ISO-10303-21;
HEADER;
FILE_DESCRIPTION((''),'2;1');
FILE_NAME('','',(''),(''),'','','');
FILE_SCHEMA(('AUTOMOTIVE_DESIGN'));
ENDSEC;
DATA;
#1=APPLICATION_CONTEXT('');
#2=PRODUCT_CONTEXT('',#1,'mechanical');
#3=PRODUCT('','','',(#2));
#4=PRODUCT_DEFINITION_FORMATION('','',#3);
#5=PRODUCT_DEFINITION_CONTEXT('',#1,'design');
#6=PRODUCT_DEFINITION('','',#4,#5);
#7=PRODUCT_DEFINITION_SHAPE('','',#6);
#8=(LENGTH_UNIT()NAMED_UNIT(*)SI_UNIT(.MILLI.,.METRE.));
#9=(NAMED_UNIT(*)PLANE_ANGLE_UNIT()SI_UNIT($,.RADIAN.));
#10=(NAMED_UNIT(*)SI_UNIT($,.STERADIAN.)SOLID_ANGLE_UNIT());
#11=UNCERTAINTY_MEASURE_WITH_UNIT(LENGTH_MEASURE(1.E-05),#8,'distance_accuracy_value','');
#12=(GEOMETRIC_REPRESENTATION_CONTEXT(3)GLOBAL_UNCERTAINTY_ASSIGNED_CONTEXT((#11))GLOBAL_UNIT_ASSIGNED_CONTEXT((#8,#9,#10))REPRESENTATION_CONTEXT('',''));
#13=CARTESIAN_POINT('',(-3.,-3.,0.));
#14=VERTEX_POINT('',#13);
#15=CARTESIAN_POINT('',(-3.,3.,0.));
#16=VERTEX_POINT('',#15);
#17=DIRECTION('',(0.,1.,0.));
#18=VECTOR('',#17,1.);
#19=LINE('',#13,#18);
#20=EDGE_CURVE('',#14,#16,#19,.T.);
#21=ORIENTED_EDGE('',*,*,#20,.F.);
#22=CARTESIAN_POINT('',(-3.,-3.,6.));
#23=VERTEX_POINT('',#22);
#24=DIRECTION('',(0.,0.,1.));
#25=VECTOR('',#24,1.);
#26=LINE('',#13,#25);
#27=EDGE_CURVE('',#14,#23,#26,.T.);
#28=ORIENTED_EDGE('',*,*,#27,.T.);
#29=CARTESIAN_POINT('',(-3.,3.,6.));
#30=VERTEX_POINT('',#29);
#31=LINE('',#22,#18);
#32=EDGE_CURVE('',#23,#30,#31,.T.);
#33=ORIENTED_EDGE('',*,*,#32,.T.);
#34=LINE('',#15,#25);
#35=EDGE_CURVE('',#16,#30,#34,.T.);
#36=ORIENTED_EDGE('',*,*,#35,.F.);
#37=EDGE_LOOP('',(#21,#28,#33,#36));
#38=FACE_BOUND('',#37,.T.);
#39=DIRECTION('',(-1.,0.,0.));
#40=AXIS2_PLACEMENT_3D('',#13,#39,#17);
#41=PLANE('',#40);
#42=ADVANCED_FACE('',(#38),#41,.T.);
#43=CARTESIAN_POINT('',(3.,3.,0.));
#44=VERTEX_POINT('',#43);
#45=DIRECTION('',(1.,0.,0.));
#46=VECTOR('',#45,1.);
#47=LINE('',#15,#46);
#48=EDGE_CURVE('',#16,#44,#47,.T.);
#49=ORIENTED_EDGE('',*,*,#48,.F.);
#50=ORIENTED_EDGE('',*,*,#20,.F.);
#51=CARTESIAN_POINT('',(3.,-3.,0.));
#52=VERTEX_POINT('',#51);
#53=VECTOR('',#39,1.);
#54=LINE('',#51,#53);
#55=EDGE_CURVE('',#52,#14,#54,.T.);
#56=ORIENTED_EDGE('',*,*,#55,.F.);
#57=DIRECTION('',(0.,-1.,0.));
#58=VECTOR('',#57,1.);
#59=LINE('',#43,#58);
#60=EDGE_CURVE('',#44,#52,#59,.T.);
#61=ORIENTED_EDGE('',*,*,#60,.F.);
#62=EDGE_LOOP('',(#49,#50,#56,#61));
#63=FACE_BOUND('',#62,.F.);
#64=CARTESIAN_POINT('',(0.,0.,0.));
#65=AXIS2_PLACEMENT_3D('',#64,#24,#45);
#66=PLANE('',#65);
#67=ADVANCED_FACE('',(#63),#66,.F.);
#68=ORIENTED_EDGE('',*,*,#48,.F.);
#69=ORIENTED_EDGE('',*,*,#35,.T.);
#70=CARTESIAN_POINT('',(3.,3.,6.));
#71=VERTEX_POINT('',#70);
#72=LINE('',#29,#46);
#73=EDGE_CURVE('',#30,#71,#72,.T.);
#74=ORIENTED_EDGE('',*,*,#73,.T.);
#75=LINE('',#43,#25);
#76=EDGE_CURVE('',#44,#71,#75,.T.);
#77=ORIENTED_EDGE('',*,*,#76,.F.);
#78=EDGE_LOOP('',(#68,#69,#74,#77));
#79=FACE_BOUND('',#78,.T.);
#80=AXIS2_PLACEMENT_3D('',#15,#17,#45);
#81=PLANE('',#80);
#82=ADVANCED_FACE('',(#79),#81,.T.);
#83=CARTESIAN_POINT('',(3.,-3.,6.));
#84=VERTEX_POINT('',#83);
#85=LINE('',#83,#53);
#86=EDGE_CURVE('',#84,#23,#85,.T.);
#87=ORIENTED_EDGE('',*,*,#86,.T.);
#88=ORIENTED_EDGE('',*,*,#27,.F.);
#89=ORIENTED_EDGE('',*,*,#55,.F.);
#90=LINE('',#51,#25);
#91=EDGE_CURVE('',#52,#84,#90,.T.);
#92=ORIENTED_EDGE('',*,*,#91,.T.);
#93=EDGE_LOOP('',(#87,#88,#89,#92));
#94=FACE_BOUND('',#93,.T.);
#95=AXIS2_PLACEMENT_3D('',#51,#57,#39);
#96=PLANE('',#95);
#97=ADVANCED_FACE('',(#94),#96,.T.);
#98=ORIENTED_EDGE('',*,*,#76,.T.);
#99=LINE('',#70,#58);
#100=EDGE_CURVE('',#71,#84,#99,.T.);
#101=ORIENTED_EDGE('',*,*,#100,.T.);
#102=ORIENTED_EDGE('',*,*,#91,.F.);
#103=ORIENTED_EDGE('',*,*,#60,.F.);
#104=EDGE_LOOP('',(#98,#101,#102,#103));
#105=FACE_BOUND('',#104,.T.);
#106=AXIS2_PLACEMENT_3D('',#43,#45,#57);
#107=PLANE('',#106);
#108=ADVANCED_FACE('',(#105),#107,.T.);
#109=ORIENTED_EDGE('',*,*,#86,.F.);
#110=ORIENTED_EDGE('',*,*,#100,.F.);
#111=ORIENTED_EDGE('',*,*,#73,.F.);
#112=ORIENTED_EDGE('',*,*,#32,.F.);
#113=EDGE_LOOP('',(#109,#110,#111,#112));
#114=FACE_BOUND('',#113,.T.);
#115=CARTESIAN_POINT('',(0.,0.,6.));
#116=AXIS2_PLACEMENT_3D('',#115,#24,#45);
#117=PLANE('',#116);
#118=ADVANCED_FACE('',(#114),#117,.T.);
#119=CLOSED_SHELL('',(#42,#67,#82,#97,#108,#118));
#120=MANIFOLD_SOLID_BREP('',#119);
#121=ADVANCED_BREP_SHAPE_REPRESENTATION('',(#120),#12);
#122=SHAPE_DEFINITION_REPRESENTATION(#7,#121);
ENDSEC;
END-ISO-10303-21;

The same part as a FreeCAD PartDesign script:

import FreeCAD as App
import Part
import Sketcher
Q = App.Units.Quantity


def add_polygon(sketch, points):
    """Adds a closed chain of lines whose ends are joined by coincident constraints."""
    first, n = sketch.GeometryCount, len(points)
    for a, b in zip(points, points[1:] + points[:1]):
        sketch.addGeometry(Part.LineSegment(App.Vector(*a, 0), App.Vector(*b, 0)), False)
    for i in range(n):
        sketch.addConstraint(Sketcher.Constraint("Coincident", first + i, 2, first + (i + 1) % n, 1))

doc = App.newDocument("Part")
body = doc.addObject("PartDesign::Body", "Body")

# Sketch on XY plane
sketch1 = body.newObject("Sketcher::SketchObject", "Sketch")
sketch1.AttachmentSupport = (doc.getObject("XY_Plane"), [""])
sketch1.MapMode = "FlatFace"
add_polygon(sketch1, [(3, 3), (-3, 3), (-3, -3), (3, -3)])  # lines 0-3
sketch1.addConstraint([
    Sketcher.Constraint("Horizontal", 0),
    Sketcher.Constraint("Vertical", 1),
    Sketcher.Constraint("Horizontal", 2),
    Sketcher.Constraint("Vertical", 3),
    Sketcher.Constraint("Symmetric", 0, 2, 2, 2, -1, 1),
    Sketcher.Constraint("Equal", 2, 1),
    Sketcher.Constraint("DistanceX", 0, 2, 0, 1, Q("6 mm")),
])
pad1 = body.newObject("PartDesign::Pad", "Pad")
pad1.Profile = sketch1
pad1.Length = 6

doc.recompute()
